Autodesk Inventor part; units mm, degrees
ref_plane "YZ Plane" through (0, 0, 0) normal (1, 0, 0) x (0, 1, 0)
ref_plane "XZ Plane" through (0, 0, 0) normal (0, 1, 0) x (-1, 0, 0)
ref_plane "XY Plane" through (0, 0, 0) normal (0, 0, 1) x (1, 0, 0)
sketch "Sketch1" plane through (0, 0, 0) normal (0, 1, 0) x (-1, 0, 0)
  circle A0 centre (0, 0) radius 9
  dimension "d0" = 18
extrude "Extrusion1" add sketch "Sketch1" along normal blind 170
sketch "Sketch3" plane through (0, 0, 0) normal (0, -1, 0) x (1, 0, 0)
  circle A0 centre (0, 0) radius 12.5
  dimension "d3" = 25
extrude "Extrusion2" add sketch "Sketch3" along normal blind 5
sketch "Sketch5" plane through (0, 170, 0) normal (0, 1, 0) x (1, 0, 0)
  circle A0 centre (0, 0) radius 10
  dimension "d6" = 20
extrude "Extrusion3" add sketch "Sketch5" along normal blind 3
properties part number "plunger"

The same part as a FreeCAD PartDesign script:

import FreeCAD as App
import Part
import Sketcher

V = App.Vector
Q = App.Units.Quantity

doc = App.newDocument("Part")
params = doc.addObject("Spreadsheet::Sheet", "Params")
for row, (alias, value) in enumerate([
    ("sketch1_diameter", "18 mm"),
    ("pad1_length", "170 mm"),
    ("sketch2_diameter", "25 mm"),
    ("pad2_length", "5 mm"),
    ("sketch3_diameter", "20 mm"),
    ("pad3_length", "3 mm"),
], start=1):
    params.set(f"A{row}", alias)
    params.set(f"B{row}", "=" + value)
    params.setAlias(f"B{row}", alias)

body = doc.addObject("PartDesign::Body", "Body")

# Sketch on XZ plane
sketch1 = body.newObject("Sketcher::SketchObject", "Sketch")
sketch1.AttachmentSupport = (doc.getObject("XZ_Plane"), [""])
sketch1.MapMode = "FlatFace"
sketch1.addGeometry(Part.Circle(V(0, 0, 0), V(0, 0, 1), 9), False)
sketch1.addConstraint(Sketcher.Constraint("Coincident", 0, 3, -1, 1))
sketch1.addConstraint(Sketcher.Constraint("Diameter", 0, Q("18 mm")))
sketch1.setExpression("Constraints[1]", "Params.sketch1_diameter")
pad1 = body.newObject("PartDesign::Pad", "Pad")
pad1.Profile = sketch1
pad1.setExpression("Length", "Params.pad1_length")
pad1.Reversed = True

# Sketch on XZ plane
sketch2 = body.newObject("Sketcher::SketchObject", "Sketch001")
sketch2.AttachmentSupport = (doc.getObject("XZ_Plane"), [""])
sketch2.MapMode = "FlatFace"
sketch2.addGeometry(Part.Circle(V(0, 0, 0), V(0, 0, 1), 12), False)
sketch2.addConstraint(Sketcher.Constraint("Coincident", 0, 3, -1, 1))
sketch2.addConstraint(Sketcher.Constraint("Diameter", 0, Q("25 mm")))
sketch2.setExpression("Constraints[1]", "Params.sketch2_diameter")
pad2 = body.newObject("PartDesign::Pad", "Pad001")
pad2.Profile = sketch2
pad2.setExpression("Length", "Params.pad2_length")

# Sketch on XZ plane
sketch3 = body.newObject("Sketcher::SketchObject", "Sketch002")
sketch3.AttachmentSupport = (doc.getObject("XZ_Plane"), [""])
sketch3.MapMode = "FlatFace"
sketch3.AttachmentOffset = App.Placement(V(0, 0, -170), App.Rotation())
sketch3.addGeometry(Part.Circle(V(0, 0, 0), V(0, 0, 1), 10), False)
sketch3.addConstraint(Sketcher.Constraint("Coincident", 0, 3, -1, 1))
sketch3.addConstraint(Sketcher.Constraint("Diameter", 0, Q("20 mm")))
sketch3.setExpression("Constraints[1]", "Params.sketch3_diameter")
pad3 = body.newObject("PartDesign::Pad", "Pad002")
pad3.Profile = sketch3
pad3.setExpression("Length", "Params.pad3_length")
pad3.Reversed = True

doc.recompute()
